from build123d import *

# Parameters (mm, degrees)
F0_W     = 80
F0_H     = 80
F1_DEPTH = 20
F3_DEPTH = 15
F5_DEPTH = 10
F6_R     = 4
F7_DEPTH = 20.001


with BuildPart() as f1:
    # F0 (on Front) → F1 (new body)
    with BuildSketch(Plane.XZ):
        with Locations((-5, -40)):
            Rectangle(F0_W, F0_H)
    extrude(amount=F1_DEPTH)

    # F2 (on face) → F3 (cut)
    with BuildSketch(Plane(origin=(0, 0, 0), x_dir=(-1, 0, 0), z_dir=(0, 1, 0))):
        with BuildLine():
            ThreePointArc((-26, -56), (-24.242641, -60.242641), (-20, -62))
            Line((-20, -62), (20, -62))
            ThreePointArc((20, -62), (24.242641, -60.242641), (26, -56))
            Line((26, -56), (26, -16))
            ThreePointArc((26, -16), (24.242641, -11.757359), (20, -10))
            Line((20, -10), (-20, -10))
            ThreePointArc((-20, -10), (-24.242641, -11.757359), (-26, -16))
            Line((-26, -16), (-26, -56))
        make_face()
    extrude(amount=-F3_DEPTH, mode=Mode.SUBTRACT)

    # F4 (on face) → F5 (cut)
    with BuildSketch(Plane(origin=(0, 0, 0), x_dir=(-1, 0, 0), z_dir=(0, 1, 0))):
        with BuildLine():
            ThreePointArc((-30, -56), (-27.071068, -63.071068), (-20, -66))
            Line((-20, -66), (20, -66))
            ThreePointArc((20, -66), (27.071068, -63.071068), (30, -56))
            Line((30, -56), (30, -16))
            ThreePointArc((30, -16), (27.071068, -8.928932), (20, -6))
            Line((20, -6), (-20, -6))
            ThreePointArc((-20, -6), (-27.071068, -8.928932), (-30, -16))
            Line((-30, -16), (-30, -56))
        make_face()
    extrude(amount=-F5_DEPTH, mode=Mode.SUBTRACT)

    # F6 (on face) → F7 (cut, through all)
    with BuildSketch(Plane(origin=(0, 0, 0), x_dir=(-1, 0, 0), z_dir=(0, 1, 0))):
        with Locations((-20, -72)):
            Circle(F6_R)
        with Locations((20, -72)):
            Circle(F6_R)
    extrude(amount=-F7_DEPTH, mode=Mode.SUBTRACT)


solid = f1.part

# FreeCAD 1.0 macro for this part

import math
import FreeCAD as App
import Part
import Sketcher
from FreeCAD import Vector


def add_polygon(sketch, points):
    """Adds a closed chain of lines whose ends are joined by coincident constraints."""
    first, n = sketch.GeometryCount, len(points)
    for a, b in zip(points, points[1:] + points[:1]):
        sketch.addGeometry(Part.LineSegment(App.Vector(*a, 0), App.Vector(*b, 0)), False)
    for i in range(n):
        sketch.addConstraint(Sketcher.Constraint("Coincident", first + i, 2, first + (i + 1) % n, 1))

doc = App.newDocument("Part")
body = doc.addObject("PartDesign::Body", "Body")

# Sketch on XZ plane
sketch1 = body.newObject("Sketcher::SketchObject", "Sketch")
sketch1.AttachmentSupport = (doc.getObject("XZ_Plane"), [""])
sketch1.MapMode = "FlatFace"
add_polygon(sketch1, [(-45, 0), (-45, -80), (35, -80), (35, 0)])  # lines 0-3
sketch1.addConstraint([
    Sketcher.Constraint("Vertical", 0),
    Sketcher.Constraint("Horizontal", 1),
    Sketcher.Constraint("Vertical", 2),
    Sketcher.Constraint("Horizontal", 3),
    Sketcher.Constraint("PointOnObject", 2, 2, -1),
    Sketcher.Constraint("Equal", 3, 0),
    Sketcher.Constraint("DistanceX", 1, 1, 1, 2, 80.0),
    Sketcher.Constraint("DistanceX", 0, 2, -1, 1, 45.0),
])
pad1 = body.newObject("PartDesign::Pad", "Pad")
pad1.Profile = sketch1
pad1.Length = 20

# Sketch on XZ plane
sketch2 = body.newObject("Sketcher::SketchObject", "Sketch001")
sketch2.AttachmentSupport = (doc.getObject("XZ_Plane"), [""])
sketch2.MapMode = "FlatFace"
sketch2.addGeometry([
    Part.ArcOfCircle(Part.Circle(Vector(20, -56, 0), Vector(0, 0, 1), 6), math.radians(-90), math.radians(0)),  # 0
    Part.LineSegment(Vector(20, -62, 0), Vector(-20, -62, 0)),  # 1
    Part.ArcOfCircle(Part.Circle(Vector(-20, -56, 0), Vector(0, 0, 1), 6), math.radians(180), math.radians(270)),  # 2
    Part.LineSegment(Vector(-26, -56, 0), Vector(-26, -16, 0)),  # 3
    Part.ArcOfCircle(Part.Circle(Vector(-20, -16, 0), Vector(0, 0, 1), 6), math.radians(90), math.radians(180)),  # 4
    Part.LineSegment(Vector(-20, -10, 0), Vector(20, -10, 0)),  # 5
    Part.ArcOfCircle(Part.Circle(Vector(20, -16, 0), Vector(0, 0, 1), 6), math.radians(0), math.radians(90)),  # 6
    Part.LineSegment(Vector(26, -16, 0), Vector(26, -56, 0)),  # 7
], False)
sketch2.addConstraint([
    Sketcher.Constraint("Tangent", 0, 1, 1, 1),
    Sketcher.Constraint("Tangent", 1, 2, 2, 2),
    Sketcher.Constraint("Tangent", 2, 1, 3, 1),
    Sketcher.Constraint("Tangent", 3, 2, 4, 2),
    Sketcher.Constraint("Tangent", 4, 1, 5, 1),
    Sketcher.Constraint("Tangent", 5, 2, 6, 2),
    Sketcher.Constraint("Tangent", 6, 1, 7, 1),
    Sketcher.Constraint("Tangent", 7, 2, 0, 2),
    Sketcher.Constraint("Horizontal", 1),
    Sketcher.Constraint("Vertical", 3),
    Sketcher.Constraint("Horizontal", 5),
    Sketcher.Constraint("Vertical", 7),
    Sketcher.Constraint("Equal", 0, 2),
    Sketcher.Constraint("Equal", 2, 4),
    Sketcher.Constraint("Equal", 4, 6),
    Sketcher.Constraint("Equal", 5, 3),
    Sketcher.Constraint("Radius", 0, 5.999999),
    Sketcher.Constraint("DistanceX", 1, 2, 1, 1, 40.0),
    Sketcher.Constraint("DistanceX", -1, 1, 0, 3, 20.000001),
    Sketcher.Constraint("DistanceY", 0, 3, -1, 1, 56.000001),
])
pocket1 = body.newObject("PartDesign::Pocket", "Pocket")
pocket1.Profile = sketch2
pocket1.Length = 15
pocket1.Reversed = True

# Sketch on XZ plane
sketch3 = body.newObject("Sketcher::SketchObject", "Sketch002")
sketch3.AttachmentSupport = (doc.getObject("XZ_Plane"), [""])
sketch3.MapMode = "FlatFace"
sketch3.addGeometry([
    Part.ArcOfCircle(Part.Circle(Vector(20, -56, 0), Vector(0, 0, 1), 10), math.radians(-90), math.radians(0)),  # 0
    Part.LineSegment(Vector(20, -66, 0), Vector(-20, -66, 0)),  # 1
    Part.ArcOfCircle(Part.Circle(Vector(-20, -56, 0), Vector(0, 0, 1), 10), math.radians(180), math.radians(270)),  # 2
    Part.LineSegment(Vector(-30, -56, 0), Vector(-30, -16, 0)),  # 3
    Part.ArcOfCircle(Part.Circle(Vector(-20, -16, 0), Vector(0, 0, 1), 10), math.radians(90), math.radians(180)),  # 4
    Part.LineSegment(Vector(-20, -6, 0), Vector(20, -6, 0)),  # 5
    Part.ArcOfCircle(Part.Circle(Vector(20, -16, 0), Vector(0, 0, 1), 10), math.radians(0), math.radians(90)),  # 6
    Part.LineSegment(Vector(30, -16, 0), Vector(30, -56, 0)),  # 7
], False)
sketch3.addConstraint([
    Sketcher.Constraint("Tangent", 0, 1, 1, 1),
    Sketcher.Constraint("Tangent", 1, 2, 2, 2),
    Sketcher.Constraint("Tangent", 2, 1, 3, 1),
    Sketcher.Constraint("Tangent", 3, 2, 4, 2),
    Sketcher.Constraint("Tangent", 4, 1, 5, 1),
    Sketcher.Constraint("Tangent", 5, 2, 6, 2),
    Sketcher.Constraint("Tangent", 6, 1, 7, 1),
    Sketcher.Constraint("Tangent", 7, 2, 0, 2),
    Sketcher.Constraint("Horizontal", 1),
    Sketcher.Constraint("Vertical", 3),
    Sketcher.Constraint("Horizontal", 5),
    Sketcher.Constraint("Vertical", 7),
    Sketcher.Constraint("Equal", 0, 2),
    Sketcher.Constraint("Equal", 2, 4),
    Sketcher.Constraint("Equal", 4, 6),
    Sketcher.Constraint("Equal", 5, 3),
    Sketcher.Constraint("Radius", 0, 9.999999),
    Sketcher.Constraint("DistanceX", 1, 2, 1, 1, 40.0),
    Sketcher.Constraint("DistanceX", -1, 1, 0, 3, 20.000001),
    Sketcher.Constraint("DistanceY", 0, 3, -1, 1, 56.000001),
])
pocket2 = body.newObject("PartDesign::Pocket", "Pocket001")
pocket2.Profile = sketch3
pocket2.Length = 10
pocket2.Reversed = True

# Sketch on XZ plane
sketch4 = body.newObject("Sketcher::SketchObject", "Sketch003")
sketch4.AttachmentSupport = (doc.getObject("XZ_Plane"), [""])
sketch4.MapMode = "FlatFace"
sketch4.addGeometry([
    Part.Circle(Vector(20, -72, 0), Vector(0, 0, 1), 4),
    Part.Circle(Vector(-20, -72, 0), Vector(0, 0, 1), 4),
], False)
sketch4.addConstraint([
    Sketcher.Constraint("Equal", 0, 1),
    Sketcher.Constraint("Symmetric", 0, 3, 1, 3, -2),
    Sketcher.Constraint("Diameter", 0, 8.0),
    Sketcher.Constraint("DistanceX", -1, 1, 0, 3, 20.0),
    Sketcher.Constraint("DistanceY", 0, 3, -1, 1, 72.0),
])
pocket3 = body.newObject("PartDesign::Pocket", "Pocket002")
pocket3.Profile = sketch4
pocket3.Type = "ThroughAll"
pocket3.Reversed = True

doc.recompute()
